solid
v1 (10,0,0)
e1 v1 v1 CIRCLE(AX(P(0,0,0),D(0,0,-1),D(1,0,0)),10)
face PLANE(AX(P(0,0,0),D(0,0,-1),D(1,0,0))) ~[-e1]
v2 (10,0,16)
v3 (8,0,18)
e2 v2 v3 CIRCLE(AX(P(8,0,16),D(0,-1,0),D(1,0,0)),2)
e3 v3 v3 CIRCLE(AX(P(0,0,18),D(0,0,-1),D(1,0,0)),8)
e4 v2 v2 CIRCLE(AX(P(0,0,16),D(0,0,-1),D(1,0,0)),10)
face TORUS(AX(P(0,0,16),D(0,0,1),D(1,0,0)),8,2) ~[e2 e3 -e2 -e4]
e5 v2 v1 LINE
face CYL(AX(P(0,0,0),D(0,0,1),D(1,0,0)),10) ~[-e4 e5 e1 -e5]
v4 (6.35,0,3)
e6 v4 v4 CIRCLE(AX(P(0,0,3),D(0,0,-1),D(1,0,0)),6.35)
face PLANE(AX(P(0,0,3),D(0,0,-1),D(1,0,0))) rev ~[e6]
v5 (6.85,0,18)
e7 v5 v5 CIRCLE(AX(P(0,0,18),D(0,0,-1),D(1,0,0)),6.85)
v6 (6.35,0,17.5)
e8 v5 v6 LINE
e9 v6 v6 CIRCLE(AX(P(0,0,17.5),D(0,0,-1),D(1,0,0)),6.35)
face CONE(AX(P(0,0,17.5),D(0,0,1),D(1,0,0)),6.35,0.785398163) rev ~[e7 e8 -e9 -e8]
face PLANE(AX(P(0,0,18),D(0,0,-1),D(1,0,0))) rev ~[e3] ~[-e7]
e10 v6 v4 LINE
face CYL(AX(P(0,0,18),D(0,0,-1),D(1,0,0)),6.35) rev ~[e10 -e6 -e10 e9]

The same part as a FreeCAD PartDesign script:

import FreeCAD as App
import Part
import Sketcher
Q = App.Units.Quantity


def edges_at(feature, points):
    """Names of the edges that pass closest to the given points."""
    edges = feature.Shape.Edges
    near = lambda p: min(range(len(edges)), key=lambda i: edges[i].distToShape(Part.Vertex(*p))[0])
    return sorted({f"Edge{near(p) + 1}" for p in points})

doc = App.newDocument("Part")
body = doc.addObject("PartDesign::Body", "Body")

# Sketch on XZ plane
sketch1 = body.newObject("Sketcher::SketchObject", "Sketch")
sketch1.AttachmentSupport = (doc.getObject("XZ_Plane"), [""])
sketch1.MapMode = "FlatFace"
sketch1.addGeometry([
    Part.LineSegment(App.Vector(10, 0, 0), App.Vector(0, 0, 0)),  # 0
    Part.LineSegment(App.Vector(0, 0, 0), App.Vector(0, 3, 0)),  # 1
    Part.LineSegment(App.Vector(0, 3, 0), App.Vector(6.3, 3, 0)),  # 2
    Part.LineSegment(App.Vector(6.3, 3, 0), App.Vector(6.3, 18, 0)),  # 3
    Part.LineSegment(App.Vector(6.3, 18, 0), App.Vector(10, 18, 0)),  # 4
    Part.LineSegment(App.Vector(10, 18, 0), App.Vector(10, 0, 0)),  # 5
], False)
sketch1.addConstraint([
    Sketcher.Constraint("Coincident", 0, 2, 1, 1),
    Sketcher.Constraint("Coincident", 1, 2, 2, 1),
    Sketcher.Constraint("Coincident", 2, 2, 3, 1),
    Sketcher.Constraint("Coincident", 3, 2, 4, 1),
    Sketcher.Constraint("Coincident", 4, 2, 5, 1),
    Sketcher.Constraint("Coincident", 5, 2, 0, 1),
    Sketcher.Constraint("Horizontal", 0),
    Sketcher.Constraint("Vertical", 1),
    Sketcher.Constraint("Horizontal", 2),
    Sketcher.Constraint("Vertical", 3),
    Sketcher.Constraint("Horizontal", 4),
    Sketcher.Constraint("Vertical", 5),
    Sketcher.Constraint("Coincident", 0, 2, -1, 1),
    Sketcher.Constraint("DistanceX", 0, 2, 0, 1, Q("10 mm")),
    Sketcher.Constraint("DistanceY", 1, 1, 1, 2, Q("3 mm")),
    Sketcher.Constraint("DistanceY", 3, 1, 3, 2, Q("15 mm")),
    Sketcher.Constraint("DistanceX", 2, 1, 2, 2, Q("6.35 mm")),
])
revolution = body.newObject("PartDesign::Revolution", "Revolution")
revolution.Profile = sketch1
revolution.ReferenceAxis = (sketch1, ["V_Axis"])
revolution.Angle = 360
doc.recompute()

fillet = body.newObject("PartDesign::Fillet", "Fillet")
fillet.Base = (revolution, edges_at(revolution, [(-9.323, -3.616, 18)]))
fillet.Radius = 2
doc.recompute()

chamfer = body.newObject("PartDesign::Chamfer", "Chamfer")
chamfer.Base = (fillet, edges_at(fillet, [(-5.92, -2.296, 18)]))
chamfer.Size = 0.5

doc.recompute()
